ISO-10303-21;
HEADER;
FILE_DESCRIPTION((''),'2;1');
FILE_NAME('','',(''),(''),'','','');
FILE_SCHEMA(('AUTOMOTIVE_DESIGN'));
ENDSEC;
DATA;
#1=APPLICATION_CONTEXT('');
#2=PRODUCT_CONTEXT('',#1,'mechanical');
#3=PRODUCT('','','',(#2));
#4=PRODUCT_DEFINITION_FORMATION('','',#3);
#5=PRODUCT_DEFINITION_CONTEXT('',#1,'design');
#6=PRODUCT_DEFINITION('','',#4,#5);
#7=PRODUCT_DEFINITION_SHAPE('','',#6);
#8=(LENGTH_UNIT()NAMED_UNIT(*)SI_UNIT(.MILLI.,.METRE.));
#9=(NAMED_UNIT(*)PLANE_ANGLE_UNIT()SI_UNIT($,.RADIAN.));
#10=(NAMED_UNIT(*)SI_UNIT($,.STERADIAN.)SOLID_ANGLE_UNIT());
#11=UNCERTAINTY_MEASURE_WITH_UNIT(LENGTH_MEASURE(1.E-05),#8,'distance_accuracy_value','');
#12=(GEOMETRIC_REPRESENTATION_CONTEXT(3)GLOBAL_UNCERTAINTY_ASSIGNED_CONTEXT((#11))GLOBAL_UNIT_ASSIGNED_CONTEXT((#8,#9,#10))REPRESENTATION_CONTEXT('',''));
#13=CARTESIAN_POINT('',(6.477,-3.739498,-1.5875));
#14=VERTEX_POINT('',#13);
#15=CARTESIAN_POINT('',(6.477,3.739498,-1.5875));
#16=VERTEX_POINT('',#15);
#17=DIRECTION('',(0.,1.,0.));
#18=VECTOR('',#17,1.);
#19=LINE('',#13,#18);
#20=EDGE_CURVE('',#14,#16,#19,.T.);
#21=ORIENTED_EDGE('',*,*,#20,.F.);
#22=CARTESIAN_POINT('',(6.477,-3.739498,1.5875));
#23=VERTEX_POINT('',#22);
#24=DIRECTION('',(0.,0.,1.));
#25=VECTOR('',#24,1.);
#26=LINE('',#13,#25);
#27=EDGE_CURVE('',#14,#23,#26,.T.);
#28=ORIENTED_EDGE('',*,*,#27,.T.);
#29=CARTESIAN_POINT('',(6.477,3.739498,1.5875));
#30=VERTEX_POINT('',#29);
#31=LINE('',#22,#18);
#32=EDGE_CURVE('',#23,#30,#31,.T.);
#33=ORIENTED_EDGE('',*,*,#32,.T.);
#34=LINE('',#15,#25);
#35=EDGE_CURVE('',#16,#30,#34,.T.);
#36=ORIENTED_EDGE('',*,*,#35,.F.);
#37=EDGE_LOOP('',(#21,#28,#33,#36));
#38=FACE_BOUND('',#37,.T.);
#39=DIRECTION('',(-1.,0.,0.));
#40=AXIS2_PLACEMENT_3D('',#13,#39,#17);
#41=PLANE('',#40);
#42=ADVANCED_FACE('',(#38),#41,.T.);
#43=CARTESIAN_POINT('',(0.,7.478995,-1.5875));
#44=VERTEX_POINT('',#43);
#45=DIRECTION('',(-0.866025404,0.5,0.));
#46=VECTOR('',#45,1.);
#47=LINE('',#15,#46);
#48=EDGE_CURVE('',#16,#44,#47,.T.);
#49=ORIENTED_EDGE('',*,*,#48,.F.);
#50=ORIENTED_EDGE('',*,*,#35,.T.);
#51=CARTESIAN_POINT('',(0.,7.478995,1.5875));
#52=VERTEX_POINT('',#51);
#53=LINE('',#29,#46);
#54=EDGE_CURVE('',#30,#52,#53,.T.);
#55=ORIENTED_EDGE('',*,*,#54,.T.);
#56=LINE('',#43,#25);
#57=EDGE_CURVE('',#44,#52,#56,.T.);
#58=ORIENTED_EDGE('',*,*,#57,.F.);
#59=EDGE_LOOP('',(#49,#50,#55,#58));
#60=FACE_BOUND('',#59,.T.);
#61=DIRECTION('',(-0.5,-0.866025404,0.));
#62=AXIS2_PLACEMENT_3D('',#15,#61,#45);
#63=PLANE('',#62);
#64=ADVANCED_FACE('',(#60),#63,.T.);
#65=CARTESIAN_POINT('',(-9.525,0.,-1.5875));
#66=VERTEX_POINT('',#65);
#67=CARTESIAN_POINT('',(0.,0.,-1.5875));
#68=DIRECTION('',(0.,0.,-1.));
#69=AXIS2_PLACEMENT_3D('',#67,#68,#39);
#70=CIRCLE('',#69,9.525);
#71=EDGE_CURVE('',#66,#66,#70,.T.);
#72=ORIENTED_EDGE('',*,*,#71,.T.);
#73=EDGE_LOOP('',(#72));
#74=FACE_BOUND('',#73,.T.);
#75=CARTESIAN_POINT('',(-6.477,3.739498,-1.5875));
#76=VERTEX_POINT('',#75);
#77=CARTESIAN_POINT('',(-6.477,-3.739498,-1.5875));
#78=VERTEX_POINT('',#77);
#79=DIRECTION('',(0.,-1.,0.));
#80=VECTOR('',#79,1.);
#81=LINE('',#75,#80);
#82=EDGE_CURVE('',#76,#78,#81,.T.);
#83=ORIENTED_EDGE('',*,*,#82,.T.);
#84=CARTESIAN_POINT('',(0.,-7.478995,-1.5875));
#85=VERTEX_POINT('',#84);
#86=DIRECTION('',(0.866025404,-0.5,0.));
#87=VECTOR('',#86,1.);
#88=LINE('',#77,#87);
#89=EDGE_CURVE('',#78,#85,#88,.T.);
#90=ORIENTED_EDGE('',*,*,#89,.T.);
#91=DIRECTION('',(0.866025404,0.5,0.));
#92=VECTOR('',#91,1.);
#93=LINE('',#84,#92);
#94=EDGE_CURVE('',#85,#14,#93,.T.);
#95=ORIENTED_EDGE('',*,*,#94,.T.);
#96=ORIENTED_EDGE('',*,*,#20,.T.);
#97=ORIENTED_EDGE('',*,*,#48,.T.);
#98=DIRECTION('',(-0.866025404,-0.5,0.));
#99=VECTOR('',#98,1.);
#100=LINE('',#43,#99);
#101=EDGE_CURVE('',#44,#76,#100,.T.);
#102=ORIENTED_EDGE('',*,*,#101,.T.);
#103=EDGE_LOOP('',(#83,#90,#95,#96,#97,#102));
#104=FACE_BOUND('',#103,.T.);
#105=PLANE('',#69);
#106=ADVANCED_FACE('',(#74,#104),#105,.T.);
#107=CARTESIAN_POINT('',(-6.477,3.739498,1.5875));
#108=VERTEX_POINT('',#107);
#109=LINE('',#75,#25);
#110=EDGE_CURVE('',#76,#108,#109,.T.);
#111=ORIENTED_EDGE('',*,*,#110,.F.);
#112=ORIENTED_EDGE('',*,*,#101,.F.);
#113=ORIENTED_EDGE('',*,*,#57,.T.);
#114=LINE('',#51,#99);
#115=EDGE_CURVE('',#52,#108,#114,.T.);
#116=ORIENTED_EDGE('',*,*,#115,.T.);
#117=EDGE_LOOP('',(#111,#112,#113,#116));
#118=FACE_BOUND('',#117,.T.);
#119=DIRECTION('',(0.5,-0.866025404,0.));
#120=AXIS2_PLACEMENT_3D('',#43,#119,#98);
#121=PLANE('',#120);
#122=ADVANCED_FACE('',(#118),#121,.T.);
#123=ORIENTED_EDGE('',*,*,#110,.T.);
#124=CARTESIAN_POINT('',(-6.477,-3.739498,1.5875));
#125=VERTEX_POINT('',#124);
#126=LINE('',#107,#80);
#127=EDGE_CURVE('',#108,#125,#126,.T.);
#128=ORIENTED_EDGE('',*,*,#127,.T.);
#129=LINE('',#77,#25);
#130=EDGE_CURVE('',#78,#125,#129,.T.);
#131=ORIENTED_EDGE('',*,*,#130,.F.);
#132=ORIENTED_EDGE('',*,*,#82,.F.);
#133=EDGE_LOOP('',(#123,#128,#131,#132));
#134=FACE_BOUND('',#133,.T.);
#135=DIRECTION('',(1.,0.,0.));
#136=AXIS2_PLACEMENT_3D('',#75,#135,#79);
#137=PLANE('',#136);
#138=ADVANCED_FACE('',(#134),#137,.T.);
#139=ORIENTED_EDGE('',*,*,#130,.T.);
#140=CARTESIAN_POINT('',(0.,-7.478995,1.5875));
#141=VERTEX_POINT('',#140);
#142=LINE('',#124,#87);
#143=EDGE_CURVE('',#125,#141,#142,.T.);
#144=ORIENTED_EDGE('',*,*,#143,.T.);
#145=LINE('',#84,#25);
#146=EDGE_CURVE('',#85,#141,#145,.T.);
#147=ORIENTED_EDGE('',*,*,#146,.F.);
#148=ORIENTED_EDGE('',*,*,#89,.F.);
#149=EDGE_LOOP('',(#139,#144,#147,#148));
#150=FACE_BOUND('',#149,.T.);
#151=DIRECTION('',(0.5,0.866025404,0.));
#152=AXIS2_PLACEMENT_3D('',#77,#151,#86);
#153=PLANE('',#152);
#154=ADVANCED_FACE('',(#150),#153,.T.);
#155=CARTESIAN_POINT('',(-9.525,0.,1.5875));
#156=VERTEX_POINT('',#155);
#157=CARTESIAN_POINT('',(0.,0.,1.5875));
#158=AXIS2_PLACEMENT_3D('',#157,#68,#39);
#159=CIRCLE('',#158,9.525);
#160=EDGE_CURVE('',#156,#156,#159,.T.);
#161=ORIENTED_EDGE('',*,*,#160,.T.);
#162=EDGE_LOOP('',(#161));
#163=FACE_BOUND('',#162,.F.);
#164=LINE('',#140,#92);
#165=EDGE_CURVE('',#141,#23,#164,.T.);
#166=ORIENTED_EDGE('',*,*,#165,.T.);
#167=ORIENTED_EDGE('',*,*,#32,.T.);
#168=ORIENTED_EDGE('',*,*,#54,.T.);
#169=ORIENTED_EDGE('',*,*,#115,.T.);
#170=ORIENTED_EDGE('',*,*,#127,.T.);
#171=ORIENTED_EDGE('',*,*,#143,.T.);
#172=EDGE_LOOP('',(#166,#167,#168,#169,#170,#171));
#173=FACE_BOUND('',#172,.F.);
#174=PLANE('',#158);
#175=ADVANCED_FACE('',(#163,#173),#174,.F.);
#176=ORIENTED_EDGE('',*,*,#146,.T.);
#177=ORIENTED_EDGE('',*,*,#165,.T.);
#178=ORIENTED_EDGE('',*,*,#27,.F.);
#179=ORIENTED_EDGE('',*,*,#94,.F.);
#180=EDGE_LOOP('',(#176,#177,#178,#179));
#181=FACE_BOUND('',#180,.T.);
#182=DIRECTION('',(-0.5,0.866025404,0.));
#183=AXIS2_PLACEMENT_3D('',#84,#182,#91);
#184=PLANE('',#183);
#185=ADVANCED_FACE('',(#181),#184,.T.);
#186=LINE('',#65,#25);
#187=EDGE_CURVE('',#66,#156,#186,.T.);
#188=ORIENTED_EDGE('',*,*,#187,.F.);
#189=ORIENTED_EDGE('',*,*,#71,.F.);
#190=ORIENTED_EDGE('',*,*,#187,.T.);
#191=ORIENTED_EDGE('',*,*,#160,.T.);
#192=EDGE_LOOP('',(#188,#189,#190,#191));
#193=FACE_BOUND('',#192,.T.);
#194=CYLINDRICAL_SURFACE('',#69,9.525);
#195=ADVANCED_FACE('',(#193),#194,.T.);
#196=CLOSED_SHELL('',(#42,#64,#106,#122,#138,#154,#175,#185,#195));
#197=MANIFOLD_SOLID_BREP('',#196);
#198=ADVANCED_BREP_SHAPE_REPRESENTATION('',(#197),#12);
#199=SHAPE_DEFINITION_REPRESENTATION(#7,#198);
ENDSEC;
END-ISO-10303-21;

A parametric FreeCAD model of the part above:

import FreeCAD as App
import Part
import Sketcher
from FreeCAD import Vector
Q = App.Units.Quantity


def add_polygon(sketch, points):
    """Adds a closed chain of lines whose ends are joined by coincident constraints."""
    first, n = sketch.GeometryCount, len(points)
    for a, b in zip(points, points[1:] + points[:1]):
        sketch.addGeometry(Part.LineSegment(App.Vector(*a, 0), App.Vector(*b, 0)), False)
    for i in range(n):
        sketch.addConstraint(Sketcher.Constraint("Coincident", first + i, 2, first + (i + 1) % n, 1))

doc = App.newDocument("Part")
params = doc.addObject("Spreadsheet::Sheet", "Params")
for row, (alias, value) in enumerate([
    ("sketch1_diameter", "0.75 in"),
    ("pad1_length", "0.125 in"),
], start=1):
    params.set(f"A{row}", alias)
    params.set(f"B{row}", "=" + value)
    params.setAlias(f"B{row}", alias)

body = doc.addObject("PartDesign::Body", "Body")

# Sketch on XY plane
sketch1 = doc.addObject("Sketcher::SketchObject", "Sketch")
body.addObject(sketch1)
sketch1.AttachmentSupport = (doc.XY_Plane, [""])
sketch1.MapMode = "FlatFace"
sketch1.AttachmentOffset = App.Placement(Vector(0, 0, -0.0625 * 25.4), App.Rotation())
sketch1.addGeometry(Part.Circle(Vector(0, 0, 0), Vector(0, 0, 1), 10), False)  # 0
add_polygon(sketch1, [(0, 7), (-6, 4), (-6, -4), (0, -7), (6, -4), (6, 4)])  # lines 1-6
sketch1.addConstraint([
    Sketcher.Constraint("Vertical", 2),
    Sketcher.Constraint("Vertical", 5),
    Sketcher.Constraint("Coincident", 0, 3, -1, 1),
    Sketcher.Constraint("Symmetric", 1, 2, 4, 2, -1, 1),
    Sketcher.Constraint("Symmetric", 3, 2, 6, 2, -1, 1),
    Sketcher.Constraint("PointOnObject", 3, 2, -2),
    Sketcher.Constraint("Parallel", 3, 6),
    Sketcher.Constraint("Horizontal", 2, 2, 4, 2),
    Sketcher.Constraint("Diameter", 0, Q("0.75 in")),
    Sketcher.Constraint("Angle", 1, Q("-150 deg")),
    Sketcher.Constraint("DistanceX", 2, 2, 4, 2, Q("0.51 in")),
    Sketcher.Constraint("DistanceY", 2, 2, 2, 1, Q("7.478995 mm")),
])
sketch1.setExpression("Constraints[14]", "Params.sketch1_diameter")
pad1 = doc.addObject("PartDesign::Pad", "Pad")
body.addObject(pad1)
pad1.Profile = sketch1
pad1.setExpression("Length", "Params.pad1_length")

doc.recompute()
